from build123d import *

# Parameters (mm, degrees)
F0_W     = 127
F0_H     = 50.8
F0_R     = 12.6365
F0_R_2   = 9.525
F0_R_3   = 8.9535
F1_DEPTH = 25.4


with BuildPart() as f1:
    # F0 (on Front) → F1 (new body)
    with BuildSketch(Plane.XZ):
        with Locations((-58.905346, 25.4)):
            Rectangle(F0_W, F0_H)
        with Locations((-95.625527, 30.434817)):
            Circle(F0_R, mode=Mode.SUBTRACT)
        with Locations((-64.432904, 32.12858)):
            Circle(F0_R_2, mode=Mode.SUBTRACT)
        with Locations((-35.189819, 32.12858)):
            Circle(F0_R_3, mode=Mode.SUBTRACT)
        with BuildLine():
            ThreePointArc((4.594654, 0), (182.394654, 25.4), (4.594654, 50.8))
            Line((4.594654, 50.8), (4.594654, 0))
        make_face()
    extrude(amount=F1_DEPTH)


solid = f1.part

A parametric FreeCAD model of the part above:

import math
import FreeCAD as App
import Part
import Sketcher
from FreeCAD import Vector
Q = App.Units.Quantity

doc = App.newDocument("Part")
body = doc.addObject("PartDesign::Body", "Body")

sketch1 = body.newObject("Sketcher::SketchObject", "Sketch")
sketch1.AttachmentSupport = (doc.getObject("XZ_Plane"), [""])
sketch1.MapMode = "FlatFace"
sketch1.addGeometry(Part.LineSegment(Vector(-122.405346, 50.8, 0), Vector(-122.405346, 0, 0)), False)
sketch1.addGeometry(Part.LineSegment(Vector(-122.405346, 0, 0), Vector(4.594654, 0, 0)), False)
sketch1.addGeometry(Part.ArcOfCircle(Part.Circle(Vector(91.680368, 25.4, 0), Vector(0, 0, 1), 90.714286), math.radians(-163.739795), math.radians(163.739795)), False)
sketch1.addGeometry(Part.LineSegment(Vector(4.594654, 50.8, 0), Vector(-122.405346, 50.8, 0)), False)
sketch1.addGeometry(Part.Circle(Vector(-95.625527, 30.434817, 0), Vector(0, 0, 1), 12.6365), False)
sketch1.addGeometry(Part.Circle(Vector(-64.432904, 32.12858, 0), Vector(0, 0, 1), 9.525), False)
sketch1.addGeometry(Part.Circle(Vector(-35.189819, 32.12858, 0), Vector(0, 0, 1), 8.9535), False)
sketch1.addConstraint(Sketcher.Constraint("Coincident", 0, 2, 1, 1))
sketch1.addConstraint(Sketcher.Constraint("Coincident", 1, 2, 2, 1))
sketch1.addConstraint(Sketcher.Constraint("Coincident", 2, 2, 3, 1))
sketch1.addConstraint(Sketcher.Constraint("Coincident", 3, 2, 0, 1))
sketch1.addConstraint(Sketcher.Constraint("Vertical", 0))
sketch1.addConstraint(Sketcher.Constraint("Horizontal", 1))
sketch1.addConstraint(Sketcher.Constraint("Horizontal", 3))
sketch1.addConstraint(Sketcher.Constraint("PointOnObject", 0, 2, -1))
sketch1.addConstraint(Sketcher.Constraint("Horizontal", 5, 3, 6, 3))
sketch1.addConstraint(Sketcher.Constraint("Vertical", 1, 2, 2, 2))
sketch1.addConstraint(Sketcher.Constraint("Diameter", 5, Q("0.75 in")))
sketch1.addConstraint(Sketcher.Constraint("DistanceX", 1, 1, 1, 2, Q("5 in")))
sketch1.addConstraint(Sketcher.Constraint("DistanceY", 0, 2, 0, 1, Q("2 in")))
sketch1.addConstraint(Sketcher.Constraint("Diameter", 4, Q("0.995 in")))
sketch1.addConstraint(Sketcher.Constraint("Diameter", 6, Q("0.705 in")))
sketch1.addConstraint(Sketcher.Constraint("Radius", 2, Q("90.714286 mm")))
sketch1.addConstraint(Sketcher.Constraint("DistanceX", -1, 1, 2, 3, Q("91.680368 mm")))
sketch1.addConstraint(Sketcher.Constraint("DistanceY", -1, 1, 5, 3, Q("32.12858 mm")))
sketch1.addConstraint(Sketcher.Constraint("DistanceX", 6, 3, -1, 1, Q("35.189819 mm")))
sketch1.addConstraint(Sketcher.Constraint("DistanceX", 4, 3, 6, 3, Q("60.435708 mm")))
sketch1.addConstraint(Sketcher.Constraint("DistanceX", 5, 3, 1, 2, Q("69.027558 mm")))
sketch1.addConstraint(Sketcher.Constraint("DistanceY", -1, 1, 4, 3, Q("30.434817 mm")))
pad1 = body.newObject("PartDesign::Pad", "Pad")
pad1.Profile = sketch1
pad1.Length = Q("1 in")

doc.recompute()
